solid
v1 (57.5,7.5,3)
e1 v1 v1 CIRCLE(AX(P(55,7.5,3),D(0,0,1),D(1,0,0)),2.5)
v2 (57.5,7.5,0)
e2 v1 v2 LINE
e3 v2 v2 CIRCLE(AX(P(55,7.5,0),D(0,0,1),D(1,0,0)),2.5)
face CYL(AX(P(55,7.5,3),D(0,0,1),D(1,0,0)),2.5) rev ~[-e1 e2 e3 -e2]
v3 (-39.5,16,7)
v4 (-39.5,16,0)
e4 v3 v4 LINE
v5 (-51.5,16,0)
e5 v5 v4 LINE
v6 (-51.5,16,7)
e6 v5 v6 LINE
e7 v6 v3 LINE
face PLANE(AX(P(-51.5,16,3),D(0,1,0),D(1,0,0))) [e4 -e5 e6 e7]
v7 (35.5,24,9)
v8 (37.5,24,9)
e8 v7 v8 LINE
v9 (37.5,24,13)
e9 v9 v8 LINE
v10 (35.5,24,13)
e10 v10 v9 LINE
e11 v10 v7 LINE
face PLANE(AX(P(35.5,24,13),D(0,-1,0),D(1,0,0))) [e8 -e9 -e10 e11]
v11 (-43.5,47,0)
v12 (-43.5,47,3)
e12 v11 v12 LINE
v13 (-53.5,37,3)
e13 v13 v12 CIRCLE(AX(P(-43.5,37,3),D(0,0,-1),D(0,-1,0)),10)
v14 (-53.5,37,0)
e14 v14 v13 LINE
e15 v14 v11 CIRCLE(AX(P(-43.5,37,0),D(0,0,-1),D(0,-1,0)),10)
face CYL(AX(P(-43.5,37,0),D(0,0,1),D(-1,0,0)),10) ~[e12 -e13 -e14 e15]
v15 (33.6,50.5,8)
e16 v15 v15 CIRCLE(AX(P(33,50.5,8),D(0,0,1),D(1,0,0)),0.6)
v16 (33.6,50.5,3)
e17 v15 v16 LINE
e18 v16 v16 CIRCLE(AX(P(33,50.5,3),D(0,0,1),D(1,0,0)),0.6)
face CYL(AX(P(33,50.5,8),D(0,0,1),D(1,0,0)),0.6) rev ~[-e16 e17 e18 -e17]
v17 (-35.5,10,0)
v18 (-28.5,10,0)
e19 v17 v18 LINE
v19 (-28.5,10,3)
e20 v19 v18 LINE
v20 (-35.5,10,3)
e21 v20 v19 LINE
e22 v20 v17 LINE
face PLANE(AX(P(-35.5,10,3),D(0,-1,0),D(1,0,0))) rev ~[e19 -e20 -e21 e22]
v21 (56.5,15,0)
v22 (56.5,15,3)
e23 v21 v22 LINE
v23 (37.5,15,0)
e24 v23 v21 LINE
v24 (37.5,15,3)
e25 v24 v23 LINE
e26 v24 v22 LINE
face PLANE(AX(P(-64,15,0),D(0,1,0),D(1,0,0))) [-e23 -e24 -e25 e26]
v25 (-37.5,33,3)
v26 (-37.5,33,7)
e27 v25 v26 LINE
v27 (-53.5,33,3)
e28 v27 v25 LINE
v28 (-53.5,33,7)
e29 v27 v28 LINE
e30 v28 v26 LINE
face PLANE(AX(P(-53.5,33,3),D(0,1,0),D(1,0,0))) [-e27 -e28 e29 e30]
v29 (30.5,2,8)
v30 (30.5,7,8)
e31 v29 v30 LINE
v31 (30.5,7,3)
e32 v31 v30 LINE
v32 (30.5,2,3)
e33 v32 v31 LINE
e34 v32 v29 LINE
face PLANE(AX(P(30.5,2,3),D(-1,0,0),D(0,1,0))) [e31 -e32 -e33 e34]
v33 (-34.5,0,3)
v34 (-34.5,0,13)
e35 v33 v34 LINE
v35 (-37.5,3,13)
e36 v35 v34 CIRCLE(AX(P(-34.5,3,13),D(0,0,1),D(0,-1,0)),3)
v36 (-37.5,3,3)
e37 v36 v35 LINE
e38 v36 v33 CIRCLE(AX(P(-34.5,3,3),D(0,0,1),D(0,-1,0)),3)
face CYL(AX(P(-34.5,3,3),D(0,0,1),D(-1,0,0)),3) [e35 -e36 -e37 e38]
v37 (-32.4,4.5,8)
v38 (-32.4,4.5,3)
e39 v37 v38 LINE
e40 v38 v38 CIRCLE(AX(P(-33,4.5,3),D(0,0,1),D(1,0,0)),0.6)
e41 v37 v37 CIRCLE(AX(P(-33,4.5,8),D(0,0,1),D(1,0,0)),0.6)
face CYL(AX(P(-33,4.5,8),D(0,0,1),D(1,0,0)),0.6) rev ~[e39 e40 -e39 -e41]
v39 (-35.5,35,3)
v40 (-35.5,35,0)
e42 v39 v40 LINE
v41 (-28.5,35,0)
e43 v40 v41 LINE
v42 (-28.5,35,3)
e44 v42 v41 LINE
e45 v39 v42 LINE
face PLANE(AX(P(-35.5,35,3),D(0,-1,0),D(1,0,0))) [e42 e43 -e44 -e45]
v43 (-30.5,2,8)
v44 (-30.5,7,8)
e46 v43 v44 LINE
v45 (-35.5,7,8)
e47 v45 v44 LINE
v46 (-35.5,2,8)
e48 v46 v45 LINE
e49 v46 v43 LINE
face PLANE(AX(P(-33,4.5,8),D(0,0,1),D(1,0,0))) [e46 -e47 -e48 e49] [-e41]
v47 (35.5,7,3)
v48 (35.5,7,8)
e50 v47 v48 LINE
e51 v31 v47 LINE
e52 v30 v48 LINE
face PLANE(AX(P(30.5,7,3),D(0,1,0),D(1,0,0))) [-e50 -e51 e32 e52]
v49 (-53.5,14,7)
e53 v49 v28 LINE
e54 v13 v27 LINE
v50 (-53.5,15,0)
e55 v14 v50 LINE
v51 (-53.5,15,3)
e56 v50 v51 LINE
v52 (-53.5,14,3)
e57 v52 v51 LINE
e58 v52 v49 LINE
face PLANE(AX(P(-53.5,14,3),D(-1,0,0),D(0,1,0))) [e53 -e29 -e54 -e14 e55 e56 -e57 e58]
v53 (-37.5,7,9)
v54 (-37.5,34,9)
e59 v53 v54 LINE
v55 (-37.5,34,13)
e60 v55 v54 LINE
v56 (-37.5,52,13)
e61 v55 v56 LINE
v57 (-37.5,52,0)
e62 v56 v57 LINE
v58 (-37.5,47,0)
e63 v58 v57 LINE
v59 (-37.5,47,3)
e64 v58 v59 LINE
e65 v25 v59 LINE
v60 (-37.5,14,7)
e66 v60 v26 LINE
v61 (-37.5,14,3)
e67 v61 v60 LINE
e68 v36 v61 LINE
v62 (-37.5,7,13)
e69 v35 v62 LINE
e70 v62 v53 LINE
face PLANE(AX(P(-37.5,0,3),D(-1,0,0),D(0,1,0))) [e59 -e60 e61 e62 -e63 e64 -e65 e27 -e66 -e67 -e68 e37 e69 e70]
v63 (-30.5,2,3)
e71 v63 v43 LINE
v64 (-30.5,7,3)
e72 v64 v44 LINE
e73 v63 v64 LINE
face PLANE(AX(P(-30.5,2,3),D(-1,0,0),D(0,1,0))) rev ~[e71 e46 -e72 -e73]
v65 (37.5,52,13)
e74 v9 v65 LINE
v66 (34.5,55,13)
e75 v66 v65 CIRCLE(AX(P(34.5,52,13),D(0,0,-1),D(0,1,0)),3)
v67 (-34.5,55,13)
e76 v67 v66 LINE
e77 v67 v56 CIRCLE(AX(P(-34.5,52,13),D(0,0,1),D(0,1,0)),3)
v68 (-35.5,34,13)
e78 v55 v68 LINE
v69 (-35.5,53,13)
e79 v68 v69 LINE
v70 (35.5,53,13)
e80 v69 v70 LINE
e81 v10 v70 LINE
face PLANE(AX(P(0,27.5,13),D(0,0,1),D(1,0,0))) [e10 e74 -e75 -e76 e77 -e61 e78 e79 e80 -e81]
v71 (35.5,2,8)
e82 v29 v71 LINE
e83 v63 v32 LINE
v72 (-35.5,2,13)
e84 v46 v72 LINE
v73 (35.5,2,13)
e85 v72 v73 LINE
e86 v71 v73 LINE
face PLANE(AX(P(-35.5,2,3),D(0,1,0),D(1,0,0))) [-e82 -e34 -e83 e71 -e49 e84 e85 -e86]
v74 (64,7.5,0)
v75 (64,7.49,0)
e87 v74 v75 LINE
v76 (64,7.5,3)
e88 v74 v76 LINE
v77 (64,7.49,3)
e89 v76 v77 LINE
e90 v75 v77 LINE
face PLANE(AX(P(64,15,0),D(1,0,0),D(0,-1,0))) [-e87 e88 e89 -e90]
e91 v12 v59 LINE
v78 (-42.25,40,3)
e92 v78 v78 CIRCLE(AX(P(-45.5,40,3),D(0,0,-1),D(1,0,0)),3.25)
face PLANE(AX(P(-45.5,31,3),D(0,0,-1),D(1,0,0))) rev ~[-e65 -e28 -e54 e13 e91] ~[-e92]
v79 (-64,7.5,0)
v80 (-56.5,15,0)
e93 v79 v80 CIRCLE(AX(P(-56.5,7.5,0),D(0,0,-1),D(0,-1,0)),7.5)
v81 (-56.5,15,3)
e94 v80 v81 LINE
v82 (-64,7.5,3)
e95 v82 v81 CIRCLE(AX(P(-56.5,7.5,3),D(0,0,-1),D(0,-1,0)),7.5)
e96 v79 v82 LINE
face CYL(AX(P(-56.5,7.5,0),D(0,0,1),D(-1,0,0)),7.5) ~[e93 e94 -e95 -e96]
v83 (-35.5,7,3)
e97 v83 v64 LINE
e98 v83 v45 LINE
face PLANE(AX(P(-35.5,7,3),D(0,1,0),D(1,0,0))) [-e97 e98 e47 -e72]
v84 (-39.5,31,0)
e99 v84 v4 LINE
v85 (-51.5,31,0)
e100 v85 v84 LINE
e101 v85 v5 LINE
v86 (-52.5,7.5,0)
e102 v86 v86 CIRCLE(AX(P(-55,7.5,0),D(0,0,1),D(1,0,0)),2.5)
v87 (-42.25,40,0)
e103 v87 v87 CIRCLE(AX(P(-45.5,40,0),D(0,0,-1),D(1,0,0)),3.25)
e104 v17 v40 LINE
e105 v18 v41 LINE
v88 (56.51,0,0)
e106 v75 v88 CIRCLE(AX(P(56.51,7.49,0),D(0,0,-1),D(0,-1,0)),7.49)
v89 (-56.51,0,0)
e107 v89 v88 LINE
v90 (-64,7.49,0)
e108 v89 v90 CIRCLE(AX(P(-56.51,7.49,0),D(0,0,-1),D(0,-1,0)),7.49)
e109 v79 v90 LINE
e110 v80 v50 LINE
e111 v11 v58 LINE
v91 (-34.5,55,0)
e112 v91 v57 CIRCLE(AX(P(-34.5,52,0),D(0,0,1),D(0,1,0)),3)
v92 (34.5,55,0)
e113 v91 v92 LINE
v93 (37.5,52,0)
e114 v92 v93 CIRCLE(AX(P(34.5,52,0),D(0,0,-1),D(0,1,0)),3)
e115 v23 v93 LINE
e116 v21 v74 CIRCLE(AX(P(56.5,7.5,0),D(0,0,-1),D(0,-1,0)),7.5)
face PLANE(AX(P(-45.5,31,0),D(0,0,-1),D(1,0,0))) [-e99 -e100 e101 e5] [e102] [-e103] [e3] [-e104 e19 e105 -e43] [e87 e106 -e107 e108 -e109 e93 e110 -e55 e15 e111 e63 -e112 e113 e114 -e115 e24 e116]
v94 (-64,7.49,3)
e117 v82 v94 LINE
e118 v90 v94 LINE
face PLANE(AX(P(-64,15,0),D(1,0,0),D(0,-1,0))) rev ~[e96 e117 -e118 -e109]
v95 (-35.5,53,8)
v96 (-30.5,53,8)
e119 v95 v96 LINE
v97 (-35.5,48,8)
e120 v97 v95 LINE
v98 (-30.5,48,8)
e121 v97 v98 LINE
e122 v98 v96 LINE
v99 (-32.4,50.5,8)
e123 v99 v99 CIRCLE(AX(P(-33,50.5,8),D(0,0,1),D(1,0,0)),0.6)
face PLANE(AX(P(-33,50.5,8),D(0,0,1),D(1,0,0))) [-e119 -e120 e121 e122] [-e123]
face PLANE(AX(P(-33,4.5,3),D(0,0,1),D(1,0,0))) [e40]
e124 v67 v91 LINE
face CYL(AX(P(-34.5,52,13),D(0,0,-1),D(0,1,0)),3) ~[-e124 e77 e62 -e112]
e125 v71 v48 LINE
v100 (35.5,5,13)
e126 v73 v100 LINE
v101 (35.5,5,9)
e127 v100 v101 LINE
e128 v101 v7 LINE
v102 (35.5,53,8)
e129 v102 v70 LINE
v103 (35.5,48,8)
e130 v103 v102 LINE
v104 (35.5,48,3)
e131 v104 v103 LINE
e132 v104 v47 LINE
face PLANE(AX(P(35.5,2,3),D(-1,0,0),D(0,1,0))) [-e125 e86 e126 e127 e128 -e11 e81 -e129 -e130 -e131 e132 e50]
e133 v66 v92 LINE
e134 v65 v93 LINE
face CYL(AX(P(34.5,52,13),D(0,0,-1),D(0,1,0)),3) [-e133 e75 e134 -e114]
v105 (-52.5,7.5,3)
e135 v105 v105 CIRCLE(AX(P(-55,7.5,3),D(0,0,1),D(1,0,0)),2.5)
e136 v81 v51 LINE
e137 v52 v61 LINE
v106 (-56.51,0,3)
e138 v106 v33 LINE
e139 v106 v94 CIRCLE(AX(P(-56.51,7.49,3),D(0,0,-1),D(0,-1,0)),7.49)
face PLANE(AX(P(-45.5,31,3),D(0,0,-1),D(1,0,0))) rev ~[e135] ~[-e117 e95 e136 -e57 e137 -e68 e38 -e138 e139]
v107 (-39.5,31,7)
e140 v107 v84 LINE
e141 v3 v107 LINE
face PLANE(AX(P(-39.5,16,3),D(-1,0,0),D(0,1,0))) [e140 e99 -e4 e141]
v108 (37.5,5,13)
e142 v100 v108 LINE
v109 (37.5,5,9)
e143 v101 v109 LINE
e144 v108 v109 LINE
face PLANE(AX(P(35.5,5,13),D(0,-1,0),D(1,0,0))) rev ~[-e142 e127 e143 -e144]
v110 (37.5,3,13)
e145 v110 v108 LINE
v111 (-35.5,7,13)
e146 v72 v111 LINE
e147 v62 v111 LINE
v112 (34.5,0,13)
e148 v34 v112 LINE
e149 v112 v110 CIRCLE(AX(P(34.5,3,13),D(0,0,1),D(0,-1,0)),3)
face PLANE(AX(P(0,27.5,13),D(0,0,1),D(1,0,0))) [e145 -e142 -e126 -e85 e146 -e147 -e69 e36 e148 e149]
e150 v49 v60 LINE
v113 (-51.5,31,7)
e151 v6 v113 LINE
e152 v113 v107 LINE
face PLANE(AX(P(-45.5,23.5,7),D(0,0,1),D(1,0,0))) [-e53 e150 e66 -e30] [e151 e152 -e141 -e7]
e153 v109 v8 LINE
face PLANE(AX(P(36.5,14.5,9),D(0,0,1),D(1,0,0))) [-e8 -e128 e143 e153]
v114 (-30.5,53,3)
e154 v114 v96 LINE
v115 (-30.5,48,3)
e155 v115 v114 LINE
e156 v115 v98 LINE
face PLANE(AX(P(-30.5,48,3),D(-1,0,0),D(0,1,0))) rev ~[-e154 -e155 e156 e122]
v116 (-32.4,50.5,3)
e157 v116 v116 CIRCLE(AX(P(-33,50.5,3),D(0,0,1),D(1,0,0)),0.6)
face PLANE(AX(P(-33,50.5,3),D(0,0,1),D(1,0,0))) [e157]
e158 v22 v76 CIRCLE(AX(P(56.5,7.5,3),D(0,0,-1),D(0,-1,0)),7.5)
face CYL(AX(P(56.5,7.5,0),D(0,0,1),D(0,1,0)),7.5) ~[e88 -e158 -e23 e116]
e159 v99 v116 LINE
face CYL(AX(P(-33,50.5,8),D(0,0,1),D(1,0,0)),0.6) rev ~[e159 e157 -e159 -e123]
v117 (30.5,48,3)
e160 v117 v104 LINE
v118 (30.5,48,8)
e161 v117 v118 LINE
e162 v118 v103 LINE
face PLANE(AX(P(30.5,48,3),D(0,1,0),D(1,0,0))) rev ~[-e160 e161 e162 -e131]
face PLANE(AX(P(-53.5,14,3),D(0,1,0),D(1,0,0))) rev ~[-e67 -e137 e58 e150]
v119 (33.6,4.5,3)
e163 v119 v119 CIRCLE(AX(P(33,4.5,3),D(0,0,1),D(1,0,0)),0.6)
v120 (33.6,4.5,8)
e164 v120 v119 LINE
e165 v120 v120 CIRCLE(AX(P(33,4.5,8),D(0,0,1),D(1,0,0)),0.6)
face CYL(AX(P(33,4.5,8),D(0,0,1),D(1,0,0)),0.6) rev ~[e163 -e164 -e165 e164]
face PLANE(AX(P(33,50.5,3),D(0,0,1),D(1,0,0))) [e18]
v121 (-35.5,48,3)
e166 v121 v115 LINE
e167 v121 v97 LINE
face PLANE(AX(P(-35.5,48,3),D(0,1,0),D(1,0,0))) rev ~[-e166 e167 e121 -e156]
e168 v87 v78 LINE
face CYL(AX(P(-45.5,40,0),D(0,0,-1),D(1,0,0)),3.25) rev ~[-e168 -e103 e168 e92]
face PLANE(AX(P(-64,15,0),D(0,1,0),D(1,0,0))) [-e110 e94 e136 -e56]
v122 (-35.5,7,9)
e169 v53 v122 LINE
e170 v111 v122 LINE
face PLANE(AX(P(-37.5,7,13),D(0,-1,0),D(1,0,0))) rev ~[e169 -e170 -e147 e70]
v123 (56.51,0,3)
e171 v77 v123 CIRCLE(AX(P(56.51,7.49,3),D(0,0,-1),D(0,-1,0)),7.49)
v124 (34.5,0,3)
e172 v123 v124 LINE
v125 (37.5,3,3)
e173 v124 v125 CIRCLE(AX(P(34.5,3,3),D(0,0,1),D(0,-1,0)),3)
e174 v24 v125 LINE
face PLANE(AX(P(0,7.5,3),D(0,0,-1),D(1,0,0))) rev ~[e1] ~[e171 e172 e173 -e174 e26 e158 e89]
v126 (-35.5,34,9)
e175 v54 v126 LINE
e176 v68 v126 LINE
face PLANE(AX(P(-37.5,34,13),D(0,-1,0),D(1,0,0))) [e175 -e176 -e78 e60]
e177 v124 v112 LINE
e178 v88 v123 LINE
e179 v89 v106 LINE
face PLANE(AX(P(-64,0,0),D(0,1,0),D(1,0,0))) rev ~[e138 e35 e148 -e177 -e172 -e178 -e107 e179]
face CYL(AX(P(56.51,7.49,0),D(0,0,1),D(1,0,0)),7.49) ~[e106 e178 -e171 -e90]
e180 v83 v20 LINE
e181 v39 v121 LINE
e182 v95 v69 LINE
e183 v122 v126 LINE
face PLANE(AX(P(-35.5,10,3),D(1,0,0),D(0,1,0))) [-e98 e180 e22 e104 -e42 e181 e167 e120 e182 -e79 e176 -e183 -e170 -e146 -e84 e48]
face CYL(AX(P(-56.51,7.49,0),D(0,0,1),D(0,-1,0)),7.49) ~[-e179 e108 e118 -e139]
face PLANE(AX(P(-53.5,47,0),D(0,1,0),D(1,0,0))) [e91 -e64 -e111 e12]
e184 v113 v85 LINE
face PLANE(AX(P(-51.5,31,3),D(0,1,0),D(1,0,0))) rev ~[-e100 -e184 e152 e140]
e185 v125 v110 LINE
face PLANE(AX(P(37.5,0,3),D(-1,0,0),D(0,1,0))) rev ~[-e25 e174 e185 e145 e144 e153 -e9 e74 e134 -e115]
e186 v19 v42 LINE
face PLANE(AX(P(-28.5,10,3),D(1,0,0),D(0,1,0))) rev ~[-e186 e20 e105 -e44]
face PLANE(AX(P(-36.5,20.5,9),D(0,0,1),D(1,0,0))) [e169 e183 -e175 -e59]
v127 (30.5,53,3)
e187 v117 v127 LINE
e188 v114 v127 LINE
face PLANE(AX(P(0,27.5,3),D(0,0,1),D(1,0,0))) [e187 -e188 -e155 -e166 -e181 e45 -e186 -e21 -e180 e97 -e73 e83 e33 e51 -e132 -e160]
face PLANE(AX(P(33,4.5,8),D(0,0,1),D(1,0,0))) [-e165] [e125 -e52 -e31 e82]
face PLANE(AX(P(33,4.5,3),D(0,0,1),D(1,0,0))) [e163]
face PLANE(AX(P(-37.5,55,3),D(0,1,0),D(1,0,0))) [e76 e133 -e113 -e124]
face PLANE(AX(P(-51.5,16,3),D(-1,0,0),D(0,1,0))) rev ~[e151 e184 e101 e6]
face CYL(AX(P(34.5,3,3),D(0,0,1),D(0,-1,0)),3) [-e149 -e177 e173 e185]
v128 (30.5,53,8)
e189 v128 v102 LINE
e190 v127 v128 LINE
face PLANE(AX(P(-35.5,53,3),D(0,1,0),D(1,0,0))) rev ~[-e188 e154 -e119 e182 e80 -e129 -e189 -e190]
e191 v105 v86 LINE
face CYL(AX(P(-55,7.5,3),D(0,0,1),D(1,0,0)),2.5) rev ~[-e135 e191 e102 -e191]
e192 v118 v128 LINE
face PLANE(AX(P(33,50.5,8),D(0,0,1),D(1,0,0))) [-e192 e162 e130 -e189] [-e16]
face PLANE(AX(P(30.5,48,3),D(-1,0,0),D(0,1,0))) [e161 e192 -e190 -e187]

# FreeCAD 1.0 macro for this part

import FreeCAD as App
import Part
import Sketcher
Q = App.Units.Quantity


def edges_at(feature, points):
    """Names of the edges that pass closest to the given points."""
    edges = feature.Shape.Edges
    near = lambda p: min(range(len(edges)), key=lambda i: edges[i].distToShape(Part.Vertex(*p))[0])
    return sorted({f"Edge{near(p) + 1}" for p in points})

doc = App.newDocument("Part")
body = doc.addObject("PartDesign::Body", "Body")

sketch1 = body.newObject("Sketcher::SketchObject", "Sketch")
sketch1.AttachmentSupport = (doc.getObject("XY_Plane"), [""])
sketch1.MapMode = "FlatFace"
sketch1.addGeometry(Part.LineSegment(App.Vector(-38, 55, 0), App.Vector(-38, 0, 0)), False)
sketch1.addGeometry(Part.LineSegment(App.Vector(-38, 0, 0), App.Vector(38, 0, 0)), False)
sketch1.addGeometry(Part.LineSegment(App.Vector(38, 0, 0), App.Vector(38, 55, 0)), False)
sketch1.addGeometry(Part.LineSegment(App.Vector(38, 55, 0), App.Vector(-38, 55, 0)), False)
sketch1.addConstraint(Sketcher.Constraint("Coincident", 0, 2, 1, 1))
sketch1.addConstraint(Sketcher.Constraint("Coincident", 1, 2, 2, 1))
sketch1.addConstraint(Sketcher.Constraint("Coincident", 2, 2, 3, 1))
sketch1.addConstraint(Sketcher.Constraint("Coincident", 3, 2, 0, 1))
sketch1.addConstraint(Sketcher.Constraint("Vertical", 0))
sketch1.addConstraint(Sketcher.Constraint("Horizontal", 1))
sketch1.addConstraint(Sketcher.Constraint("Vertical", 2))
sketch1.addConstraint(Sketcher.Constraint("Horizontal", 3))
sketch1.addConstraint(Sketcher.Constraint("Symmetric", 0, 2, 1, 2, -1, 1))
sketch1.addConstraint(Sketcher.Constraint("DistanceX", 1, 1, 1, 2, Q("75 mm")))
sketch1.addConstraint(Sketcher.Constraint("DistanceY", 0, 2, 0, 1, Q("55 mm")))
pad1 = body.newObject("PartDesign::Pad", "Pad")
pad1.Profile = sketch1
pad1.Length = 3

sketch2 = body.newObject("Sketcher::SketchObject", "Sketch001")
sketch2.AttachmentSupport = (doc.getObject("XY_Plane"), [""])
sketch2.MapMode = "FlatFace"
sketch2.AttachmentOffset = App.Placement(App.Vector(0, 0, 3), App.Rotation())
sketch2.addGeometry(Part.LineSegment(App.Vector(-38, 55, 0), App.Vector(-38, 0, 0)), False)
sketch2.addGeometry(Part.LineSegment(App.Vector(-38, 0, 0), App.Vector(38, 0, 0)), False)
sketch2.addGeometry(Part.LineSegment(App.Vector(38, 0, 0), App.Vector(38, 55, 0)), False)
sketch2.addGeometry(Part.LineSegment(App.Vector(38, 55, 0), App.Vector(-38, 55, 0)), False)
sketch2.addGeometry(Part.LineSegment(App.Vector(36, 2, 0), App.Vector(-36, 2, 0)), False)
sketch2.addGeometry(Part.LineSegment(App.Vector(-36, 2, 0), App.Vector(-36, 53, 0)), False)
sketch2.addGeometry(Part.LineSegment(App.Vector(-36, 53, 0), App.Vector(36, 53, 0)), False)
sketch2.addGeometry(Part.LineSegment(App.Vector(36, 53, 0), App.Vector(36, 2, 0)), False)
sketch2.addConstraint(Sketcher.Constraint("Coincident", 0, 2, 1, 1))
sketch2.addConstraint(Sketcher.Constraint("Coincident", 1, 2, 2, 1))
sketch2.addConstraint(Sketcher.Constraint("Coincident", 2, 2, 3, 1))
sketch2.addConstraint(Sketcher.Constraint("Coincident", 3, 2, 0, 1))
sketch2.addConstraint(Sketcher.Constraint("Coincident", 4, 2, 5, 1))
sketch2.addConstraint(Sketcher.Constraint("Coincident", 5, 2, 6, 1))
sketch2.addConstraint(Sketcher.Constraint("Coincident", 6, 2, 7, 1))
sketch2.addConstraint(Sketcher.Constraint("Coincident", 7, 2, 4, 1))
sketch2.addConstraint(Sketcher.Constraint("Vertical", 0))
sketch2.addConstraint(Sketcher.Constraint("Horizontal", 1))
sketch2.addConstraint(Sketcher.Constraint("Vertical", 2))
sketch2.addConstraint(Sketcher.Constraint("Horizontal", 3))
sketch2.addConstraint(Sketcher.Constraint("Horizontal", 4))
sketch2.addConstraint(Sketcher.Constraint("Vertical", 5))
sketch2.addConstraint(Sketcher.Constraint("Horizontal", 6))
sketch2.addConstraint(Sketcher.Constraint("Vertical", 7))
sketch2.addConstraint(Sketcher.Constraint("Symmetric", 0, 2, 1, 2, -1, 1))
sketch2.addConstraint(Sketcher.Constraint("DistanceX", 1, 1, 1, 2, Q("75 mm")))
sketch2.addConstraint(Sketcher.Constraint("DistanceX", 4, 2, 4, 1, Q("71 mm")))
sketch2.addConstraint(Sketcher.Constraint("DistanceY", 0, 2, 0, 1, Q("55 mm")))
sketch2.addConstraint(Sketcher.Constraint("DistanceY", 5, 1, 5, 2, Q("51 mm")))
sketch2.addConstraint(Sketcher.Constraint("DistanceY", -1, 1, 4, 2, Q("2 mm")))
sketch2.addConstraint(Sketcher.Constraint("DistanceX", 0, 2, 4, 2, Q("2 mm")))
pad2 = body.newObject("PartDesign::Pad", "Pad001")
pad2.Profile = sketch2
pad2.Length = 10

sketch3 = body.newObject("Sketcher::SketchObject", "Sketch002")
sketch3.AttachmentSupport = (doc.getObject("XY_Plane"), [""])
sketch3.MapMode = "FlatFace"
sketch3.AttachmentOffset = App.Placement(App.Vector(0, 0, 3), App.Rotation())
sketch3.addGeometry(Part.LineSegment(App.Vector(-36, 53, 0), App.Vector(-36, 48, 0)), False)
sketch3.addGeometry(Part.LineSegment(App.Vector(-36, 48, 0), App.Vector(-30, 48, 0)), False)
sketch3.addGeometry(Part.LineSegment(App.Vector(-30, 48, 0), App.Vector(-30, 53, 0)), False)
sketch3.addGeometry(Part.LineSegment(App.Vector(-30, 53, 0), App.Vector(-36, 53, 0)), False)
sketch3.addGeometry(Part.LineSegment(App.Vector(30, 53, 0), App.Vector(30, 48, 0)), False)
sketch3.addGeometry(Part.LineSegment(App.Vector(30, 48, 0), App.Vector(36, 48, 0)), False)
sketch3.addGeometry(Part.LineSegment(App.Vector(36, 48, 0), App.Vector(36, 53, 0)), False)
sketch3.addGeometry(Part.LineSegment(App.Vector(36, 53, 0), App.Vector(30, 53, 0)), False)
sketch3.addGeometry(Part.LineSegment(App.Vector(30, 7, 0), App.Vector(30, 2, 0)), False)
sketch3.addGeometry(Part.LineSegment(App.Vector(30, 2, 0), App.Vector(36, 2, 0)), False)
sketch3.addGeometry(Part.LineSegment(App.Vector(36, 2, 0), App.Vector(36, 7, 0)), False)
sketch3.addGeometry(Part.LineSegment(App.Vector(36, 7, 0), App.Vector(30, 7, 0)), False)
sketch3.addGeometry(Part.LineSegment(App.Vector(-36, 7, 0), App.Vector(-36, 2, 0)), False)
sketch3.addGeometry(Part.LineSegment(App.Vector(-36, 2, 0), App.Vector(-30, 2, 0)), False)
sketch3.addGeometry(Part.LineSegment(App.Vector(-30, 2, 0), App.Vector(-30, 7, 0)), False)
sketch3.addGeometry(Part.LineSegment(App.Vector(-30, 7, 0), App.Vector(-36, 7, 0)), False)
sketch3.addConstraint(Sketcher.Constraint("Coincident", 0, 2, 1, 1))
sketch3.addConstraint(Sketcher.Constraint("Coincident", 1, 2, 2, 1))
sketch3.addConstraint(Sketcher.Constraint("Coincident", 2, 2, 3, 1))
sketch3.addConstraint(Sketcher.Constraint("Coincident", 3, 2, 0, 1))
sketch3.addConstraint(Sketcher.Constraint("Coincident", 4, 2, 5, 1))
sketch3.addConstraint(Sketcher.Constraint("Coincident", 5, 2, 6, 1))
sketch3.addConstraint(Sketcher.Constraint("Coincident", 6, 2, 7, 1))
sketch3.addConstraint(Sketcher.Constraint("Coincident", 7, 2, 4, 1))
sketch3.addConstraint(Sketcher.Constraint("Coincident", 8, 2, 9, 1))
sketch3.addConstraint(Sketcher.Constraint("Coincident", 9, 2, 10, 1))
sketch3.addConstraint(Sketcher.Constraint("Coincident", 10, 2, 11, 1))
sketch3.addConstraint(Sketcher.Constraint("Coincident", 11, 2, 8, 1))
sketch3.addConstraint(Sketcher.Constraint("Coincident", 12, 2, 13, 1))
sketch3.addConstraint(Sketcher.Constraint("Coincident", 13, 2, 14, 1))
sketch3.addConstraint(Sketcher.Constraint("Coincident", 14, 2, 15, 1))
sketch3.addConstraint(Sketcher.Constraint("Coincident", 15, 2, 12, 1))
sketch3.addConstraint(Sketcher.Constraint("Vertical", 0))
sketch3.addConstraint(Sketcher.Constraint("Horizontal", 1))
sketch3.addConstraint(Sketcher.Constraint("Vertical", 2))
sketch3.addConstraint(Sketcher.Constraint("Horizontal", 3))
sketch3.addConstraint(Sketcher.Constraint("Vertical", 4))
sketch3.addConstraint(Sketcher.Constraint("Horizontal", 5))
sketch3.addConstraint(Sketcher.Constraint("Vertical", 6))
sketch3.addConstraint(Sketcher.Constraint("Horizontal", 7))
sketch3.addConstraint(Sketcher.Constraint("Vertical", 8))
sketch3.addConstraint(Sketcher.Constraint("Horizontal", 9))
sketch3.addConstraint(Sketcher.Constraint("Vertical", 10))
sketch3.addConstraint(Sketcher.Constraint("Horizontal", 11))
sketch3.addConstraint(Sketcher.Constraint("Vertical", 12))
sketch3.addConstraint(Sketcher.Constraint("Horizontal", 13))
sketch3.addConstraint(Sketcher.Constraint("Vertical", 14))
sketch3.addConstraint(Sketcher.Constraint("Horizontal", 15))
sketch3.addConstraint(Sketcher.Constraint("Symmetric", 1, 2, 4, 2, -2))
sketch3.addConstraint(Sketcher.Constraint("Symmetric", 3, 2, 6, 2, -2))
sketch3.addConstraint(Sketcher.Constraint("Symmetric", 9, 2, 12, 2, -2))
sketch3.addConstraint(Sketcher.Constraint("Symmetric", 11, 2, 14, 2, -2))
sketch3.addConstraint(Sketcher.Constraint("Vertical", 7, 2, 8, 2))
sketch3.addConstraint(Sketcher.Constraint("Vertical", 6, 2, 9, 2))
sketch3.addConstraint(Sketcher.Constraint("Equal", 15, 0))
sketch3.addConstraint(Sketcher.Constraint("Equal", 6, 8))
sketch3.addConstraint(Sketcher.Constraint("DistanceX", 1, 1, 1, 2, Q("5 mm")))
sketch3.addConstraint(Sketcher.Constraint("DistanceY", -1, 1, 0, 2, Q("48 mm")))
sketch3.addConstraint(Sketcher.Constraint("DistanceY", -1, 1, 8, 2, Q("2 mm")))
sketch3.addConstraint(Sketcher.Constraint("DistanceX", 1, 2, 4, 2, Q("61 mm")))
pad3 = body.newObject("PartDesign::Pad", "Pad002")
pad3.Profile = sketch3
pad3.Length = 5

sketch4 = body.newObject("Sketcher::SketchObject", "Sketch003")
sketch4.AttachmentSupport = (doc.getObject("XY_Plane"), [""])
sketch4.MapMode = "FlatFace"
sketch4.AttachmentOffset = App.Placement(App.Vector(0, 0, 13), App.Rotation())
sketch4.addGeometry(Part.LineSegment(App.Vector(35.5, 24, 0), App.Vector(35.5, 5, 0)), False)
sketch4.addGeometry(Part.LineSegment(App.Vector(35.5, 5, 0), App.Vector(37.5, 5, 0)), False)
sketch4.addGeometry(Part.LineSegment(App.Vector(37.5, 5, 0), App.Vector(37.5, 24, 0)), False)
sketch4.addGeometry(Part.LineSegment(App.Vector(37.5, 24, 0), App.Vector(35.5, 24, 0)), False)
sketch4.addConstraint(Sketcher.Constraint("Coincident", 0, 2, 1, 1))
sketch4.addConstraint(Sketcher.Constraint("Coincident", 1, 2, 2, 1))
sketch4.addConstraint(Sketcher.Constraint("Coincident", 2, 2, 3, 1))
sketch4.addConstraint(Sketcher.Constraint("Coincident", 3, 2, 0, 1))
sketch4.addConstraint(Sketcher.Constraint("Vertical", 0))
sketch4.addConstraint(Sketcher.Constraint("Horizontal", 1))
sketch4.addConstraint(Sketcher.Constraint("Vertical", 2))
sketch4.addConstraint(Sketcher.Constraint("Horizontal", 3))
sketch4.addConstraint(Sketcher.Constraint("DistanceX", 1, 1, 1, 2, Q("2 mm")))
sketch4.addConstraint(Sketcher.Constraint("DistanceY", 0, 2, 0, 1, Q("19 mm")))
sketch4.addConstraint(Sketcher.Constraint("DistanceY", -1, 1, 0, 2, Q("5 mm")))
sketch4.addConstraint(Sketcher.Constraint("DistanceX", -1, 1, 0, 2, Q("35.5 mm")))
pocket1 = body.newObject("PartDesign::Pocket", "Pocket")
pocket1.Profile = sketch4
pocket1.Length = 4

sketch5 = body.newObject("Sketcher::SketchObject", "Sketch004")
sketch5.AttachmentSupport = (doc.getObject("XY_Plane"), [""])
sketch5.MapMode = "FlatFace"
sketch5.AttachmentOffset = App.Placement(App.Vector(0, 0, 13), App.Rotation())
sketch5.addGeometry(Part.LineSegment(App.Vector(-37.5, 34, 0), App.Vector(-37.5, 7, 0)), False)
sketch5.addGeometry(Part.LineSegment(App.Vector(-37.5, 7, 0), App.Vector(-35.5, 7, 0)), False)
sketch5.addGeometry(Part.LineSegment(App.Vector(-35.5, 7, 0), App.Vector(-35.5, 34, 0)), False)
sketch5.addGeometry(Part.LineSegment(App.Vector(-35.5, 34, 0), App.Vector(-37.5, 34, 0)), False)
sketch5.addConstraint(Sketcher.Constraint("Coincident", 0, 2, 1, 1))
sketch5.addConstraint(Sketcher.Constraint("Coincident", 1, 2, 2, 1))
sketch5.addConstraint(Sketcher.Constraint("Coincident", 2, 2, 3, 1))
sketch5.addConstraint(Sketcher.Constraint("Coincident", 3, 2, 0, 1))
sketch5.addConstraint(Sketcher.Constraint("Vertical", 0))
sketch5.addConstraint(Sketcher.Constraint("Horizontal", 1))
sketch5.addConstraint(Sketcher.Constraint("Vertical", 2))
sketch5.addConstraint(Sketcher.Constraint("Horizontal", 3))
sketch5.addConstraint(Sketcher.Constraint("DistanceX", 1, 1, 1, 2, Q("2 mm")))
sketch5.addConstraint(Sketcher.Constraint("DistanceY", 0, 2, 0, 1, Q("27 mm")))
sketch5.addConstraint(Sketcher.Constraint("DistanceY", -1, 1, 0, 2, Q("7 mm")))
sketch5.addConstraint(Sketcher.Constraint("DistanceX", 0, 2, -1, 1, Q("37.5 mm")))
pocket2 = body.newObject("PartDesign::Pocket", "Pocket001")
pocket2.Profile = sketch5
pocket2.Length = 4

sketch6 = body.newObject("Sketcher::SketchObject", "Sketch005")
sketch6.AttachmentSupport = (doc.getObject("XY_Plane"), [""])
sketch6.MapMode = "FlatFace"
sketch6.addGeometry(Part.LineSegment(App.Vector(-64, 0, 0), App.Vector(-64, 15, 0)), False)
sketch6.addGeometry(Part.LineSegment(App.Vector(-64, 15, 0), App.Vector(64, 15, 0)), False)
sketch6.addGeometry(Part.LineSegment(App.Vector(64, 15, 0), App.Vector(64, 0, 0)), False)
sketch6.addGeometry(Part.LineSegment(App.Vector(64, 0, 0), App.Vector(-64, 0, 0)), False)
sketch6.addConstraint(Sketcher.Constraint("Coincident", 0, 2, 1, 1))
sketch6.addConstraint(Sketcher.Constraint("Coincident", 1, 2, 2, 1))
sketch6.addConstraint(Sketcher.Constraint("Coincident", 2, 2, 3, 1))
sketch6.addConstraint(Sketcher.Constraint("Coincident", 3, 2, 0, 1))
sketch6.addConstraint(Sketcher.Constraint("Vertical", 0))
sketch6.addConstraint(Sketcher.Constraint("Horizontal", 1))
sketch6.addConstraint(Sketcher.Constraint("Vertical", 2))
sketch6.addConstraint(Sketcher.Constraint("Horizontal", 3))
sketch6.addConstraint(Sketcher.Constraint("Symmetric", 2, 2, 3, 2, -1, 1))
sketch6.addConstraint(Sketcher.Constraint("DistanceX", 1, 1, 1, 2, Q("128 mm")))
sketch6.addConstraint(Sketcher.Constraint("DistanceY", 0, 1, 0, 2, Q("15 mm")))
pad4 = body.newObject("PartDesign::Pad", "Pad003")
pad4.Profile = sketch6
pad4.Length = 3

sketch7 = body.newObject("Sketcher::SketchObject", "Sketch006")
sketch7.AttachmentSupport = (doc.getObject("XY_Plane"), [""])
sketch7.MapMode = "FlatFace"
sketch7.AttachmentOffset = App.Placement(App.Vector(0, 0, 3), App.Rotation())
sketch7.addGeometry(Part.Circle(App.Vector(-55, 7.5, 0), App.Vector(0, 0, 1), 2.5), False)
sketch7.addGeometry(Part.Circle(App.Vector(55, 7.5, 0), App.Vector(0, 0, 1), 2.5), False)
sketch7.addConstraint(Sketcher.Constraint("Equal", 0, 1))
sketch7.addConstraint(Sketcher.Constraint("Symmetric", 0, 3, 1, 3, -2))
sketch7.addConstraint(Sketcher.Constraint("Diameter", 0, Q("5 mm")))
sketch7.addConstraint(Sketcher.Constraint("DistanceX", 0, 3, -1, 1, Q("55 mm")))
sketch7.addConstraint(Sketcher.Constraint("DistanceY", -1, 1, 0, 3, Q("7.5 mm")))
pocket3 = body.newObject("PartDesign::Pocket", "Pocket002")
pocket3.Profile = sketch7
pocket3.Length = 3

sketch8 = body.newObject("Sketcher::SketchObject", "Sketch007")
sketch8.AttachmentSupport = (doc.getObject("XY_Plane"), [""])
sketch8.MapMode = "FlatFace"
sketch8.addGeometry(Part.LineSegment(App.Vector(-53.5, 15, 0), App.Vector(-53.5, 47, 0)), False)
sketch8.addGeometry(Part.LineSegment(App.Vector(-53.5, 47, 0), App.Vector(-37.5, 47, 0)), False)
sketch8.addGeometry(Part.LineSegment(App.Vector(-37.5, 47, 0), App.Vector(-37.5, 15, 0)), False)
sketch8.addGeometry(Part.LineSegment(App.Vector(-37.5, 15, 0), App.Vector(-53.5, 15, 0)), False)
sketch8.addGeometry(Part.Circle(App.Vector(-45.5, 40, 0), App.Vector(0, 0, 1), 3.2), False)
sketch8.addGeometry(Part.LineSegment(App.Vector(-39.5, 31, 0), App.Vector(-51.5, 31, 0)), False)
sketch8.addGeometry(Part.LineSegment(App.Vector(-51.5, 31, 0), App.Vector(-51.5, 16, 0)), False)
sketch8.addGeometry(Part.LineSegment(App.Vector(-51.5, 16, 0), App.Vector(-39.5, 16, 0)), False)
sketch8.addGeometry(Part.LineSegment(App.Vector(-39.5, 16, 0), App.Vector(-39.5, 31, 0)), False)
sketch8.addConstraint(Sketcher.Constraint("Coincident", 0, 2, 1, 1))
sketch8.addConstraint(Sketcher.Constraint("Coincident", 1, 2, 2, 1))
sketch8.addConstraint(Sketcher.Constraint("Coincident", 2, 2, 3, 1))
sketch8.addConstraint(Sketcher.Constraint("Coincident", 3, 2, 0, 1))
sketch8.addConstraint(Sketcher.Constraint("Coincident", 5, 2, 6, 1))
sketch8.addConstraint(Sketcher.Constraint("Coincident", 6, 2, 7, 1))
sketch8.addConstraint(Sketcher.Constraint("Coincident", 7, 2, 8, 1))
sketch8.addConstraint(Sketcher.Constraint("Coincident", 8, 2, 5, 1))
sketch8.addConstraint(Sketcher.Constraint("Vertical", 0))
sketch8.addConstraint(Sketcher.Constraint("Horizontal", 1))
sketch8.addConstraint(Sketcher.Constraint("Vertical", 2))
sketch8.addConstraint(Sketcher.Constraint("Horizontal", 3))
sketch8.addConstraint(Sketcher.Constraint("Horizontal", 5))
sketch8.addConstraint(Sketcher.Constraint("Vertical", 6))
sketch8.addConstraint(Sketcher.Constraint("Horizontal", 7))
sketch8.addConstraint(Sketcher.Constraint("Vertical", 8))
sketch8.addConstraint(Sketcher.Constraint("Diameter", 4, Q("6.5 mm")))
sketch8.addConstraint(Sketcher.Constraint("DistanceX", 1, 1, 1, 2, Q("16 mm")))
sketch8.addConstraint(Sketcher.Constraint("DistanceX", 5, 2, 5, 1, Q("12 mm")))
sketch8.addConstraint(Sketcher.Constraint("DistanceY", 0, 1, 0, 2, Q("32 mm")))
sketch8.addConstraint(Sketcher.Constraint("DistanceY", 6, 2, 6, 1, Q("15 mm")))
sketch8.addConstraint(Sketcher.Constraint("DistanceY", -1, 1, 4, 3, Q("40 mm")))
sketch8.addConstraint(Sketcher.Constraint("DistanceY", -1, 1, 0, 2, Q("47 mm")))
sketch8.addConstraint(Sketcher.Constraint("DistanceY", -1, 1, 5, 2, Q("31 mm")))
sketch8.addConstraint(Sketcher.Constraint("DistanceX", 0, 2, 4, 3, Q("8 mm")))
sketch8.addConstraint(Sketcher.Constraint("DistanceX", 5, 2, 4, 3, Q("6 mm")))
sketch8.addConstraint(Sketcher.Constraint("DistanceX", 4, 3, -1, 1, Q("45.5 mm")))
pad5 = body.newObject("PartDesign::Pad", "Pad004")
pad5.Profile = sketch8
pad5.Length = 3

sketch9 = body.newObject("Sketcher::SketchObject", "Sketch008")
sketch9.AttachmentSupport = (doc.getObject("XY_Plane"), [""])
sketch9.MapMode = "FlatFace"
sketch9.AttachmentOffset = App.Placement(App.Vector(0, 0, 3), App.Rotation())
sketch9.addGeometry(Part.LineSegment(App.Vector(-36, 35, 0), App.Vector(-36, 10, 0)), False)
sketch9.addGeometry(Part.LineSegment(App.Vector(-36, 10, 0), App.Vector(-28, 10, 0)), False)
sketch9.addGeometry(Part.LineSegment(App.Vector(-28, 10, 0), App.Vector(-28, 35, 0)), False)
sketch9.addGeometry(Part.LineSegment(App.Vector(-28, 35, 0), App.Vector(-36, 35, 0)), False)
sketch9.addConstraint(Sketcher.Constraint("Coincident", 0, 2, 1, 1))
sketch9.addConstraint(Sketcher.Constraint("Coincident", 1, 2, 2, 1))
sketch9.addConstraint(Sketcher.Constraint("Coincident", 2, 2, 3, 1))
sketch9.addConstraint(Sketcher.Constraint("Coincident", 3, 2, 0, 1))
sketch9.addConstraint(Sketcher.Constraint("Vertical", 0))
sketch9.addConstraint(Sketcher.Constraint("Horizontal", 1))
sketch9.addConstraint(Sketcher.Constraint("Vertical", 2))
sketch9.addConstraint(Sketcher.Constraint("Horizontal", 3))
sketch9.addConstraint(Sketcher.Constraint("DistanceX", 1, 1, 1, 2, Q("7 mm")))
sketch9.addConstraint(Sketcher.Constraint("DistanceY", 0, 2, 0, 1, Q("25 mm")))
sketch9.addConstraint(Sketcher.Constraint("DistanceY", -1, 1, 0, 2, Q("10 mm")))
sketch9.addConstraint(Sketcher.Constraint("DistanceX", 0, 2, -1, 1, Q("35.5 mm")))
pocket4 = body.newObject("PartDesign::Pocket", "Pocket003")
pocket4.Profile = sketch9
pocket4.Length = 3

sketch10 = body.newObject("Sketcher::SketchObject", "Sketch009")
sketch10.AttachmentSupport = (doc.getObject("XY_Plane"), [""])
sketch10.MapMode = "FlatFace"
sketch10.AttachmentOffset = App.Placement(App.Vector(0, 0, 3), App.Rotation())
sketch10.addGeometry(Part.LineSegment(App.Vector(-54, 33, 0), App.Vector(-54, 14, 0)), False)
sketch10.addGeometry(Part.LineSegment(App.Vector(-54, 14, 0), App.Vector(-38, 14, 0)), False)
sketch10.addGeometry(Part.LineSegment(App.Vector(-38, 14, 0), App.Vector(-38, 33, 0)), False)
sketch10.addGeometry(Part.LineSegment(App.Vector(-38, 33, 0), App.Vector(-54, 33, 0)), False)
sketch10.addGeometry(Part.LineSegment(App.Vector(-40, 16, 0), App.Vector(-52, 16, 0)), False)
sketch10.addGeometry(Part.LineSegment(App.Vector(-52, 16, 0), App.Vector(-52, 31, 0)), False)
sketch10.addGeometry(Part.LineSegment(App.Vector(-52, 31, 0), App.Vector(-40, 31, 0)), False)
sketch10.addGeometry(Part.LineSegment(App.Vector(-40, 31, 0), App.Vector(-40, 16, 0)), False)
sketch10.addConstraint(Sketcher.Constraint("Coincident", 0, 2, 1, 1))
sketch10.addConstraint(Sketcher.Constraint("Coincident", 1, 2, 2, 1))
sketch10.addConstraint(Sketcher.Constraint("Coincident", 2, 2, 3, 1))
sketch10.addConstraint(Sketcher.Constraint("Coincident", 3, 2, 0, 1))
sketch10.addConstraint(Sketcher.Constraint("Coincident", 4, 2, 5, 1))
sketch10.addConstraint(Sketcher.Constraint("Coincident", 5, 2, 6, 1))
sketch10.addConstraint(Sketcher.Constraint("Coincident", 6, 2, 7, 1))
sketch10.addConstraint(Sketcher.Constraint("Coincident", 7, 2, 4, 1))
sketch10.addConstraint(Sketcher.Constraint("Vertical", 0))
sketch10.addConstraint(Sketcher.Constraint("Horizontal", 1))
sketch10.addConstraint(Sketcher.Constraint("Vertical", 2))
sketch10.addConstraint(Sketcher.Constraint("Horizontal", 3))
sketch10.addConstraint(Sketcher.Constraint("Horizontal", 4))
sketch10.addConstraint(Sketcher.Constraint("Vertical", 5))
sketch10.addConstraint(Sketcher.Constraint("Horizontal", 6))
sketch10.addConstraint(Sketcher.Constraint("Vertical", 7))
sketch10.addConstraint(Sketcher.Constraint("DistanceX", 1, 1, 1, 2, Q("16 mm")))
sketch10.addConstraint(Sketcher.Constraint("DistanceX", 4, 2, 4, 1, Q("12 mm")))
sketch10.addConstraint(Sketcher.Constraint("DistanceY", 0, 2, 0, 1, Q("19 mm")))
sketch10.addConstraint(Sketcher.Constraint("DistanceY", 5, 1, 5, 2, Q("15 mm")))
sketch10.addConstraint(Sketcher.Constraint("DistanceY", -1, 1, 0, 2, Q("14 mm")))
sketch10.addConstraint(Sketcher.Constraint("DistanceY", -1, 1, 4, 2, Q("16 mm")))
sketch10.addConstraint(Sketcher.Constraint("DistanceX", 0, 2, 4, 2, Q("2 mm")))
sketch10.addConstraint(Sketcher.Constraint("DistanceX", 0, 2, -1, 1, Q("53.5 mm")))
pad6 = body.newObject("PartDesign::Pad", "Pad005")
pad6.Profile = sketch10
pad6.Length = 4
doc.recompute()

fillet = body.newObject("PartDesign::Fillet", "Fillet")
fillet.Base = (pad6, edges_at(pad6, [(-53.5, 47, 1.5)]))
fillet.Radius = 10
doc.recompute()

fillet2 = body.newObject("PartDesign::Fillet", "Fillet001")
fillet2.Base = (fillet, edges_at(fillet, [(37.5, 55, 6.5)]))
fillet2.Radius = 3
doc.recompute()

fillet3 = body.newObject("PartDesign::Fillet", "Fillet002")
fillet3.Base = (fillet2, edges_at(fillet2, [(-37.5, 55, 6.5)]))
fillet3.Radius = 3
doc.recompute()

fillet4 = body.newObject("PartDesign::Fillet", "Fillet003")
fillet4.Base = (fillet3, edges_at(fillet3, [(-37.5, 0, 8)]))
fillet4.Radius = 3
doc.recompute()

fillet5 = body.newObject("PartDesign::Fillet", "Fillet004")
fillet5.Base = (fillet4, edges_at(fillet4, [(37.5, 0, 8)]))
fillet5.Radius = 3
doc.recompute()

fillet6 = body.newObject("PartDesign::Fillet", "Fillet005")
fillet6.Base = (fillet5, edges_at(fillet5, [(64, 15, 1.5)]))
fillet6.Radius = 7.5
doc.recompute()

fillet7 = body.newObject("PartDesign::Fillet", "Fillet006")
fillet7.Base = (fillet6, edges_at(fillet6, [(64, 0, 1.5)]))
fillet7.Radius = 7.49
doc.recompute()

fillet8 = body.newObject("PartDesign::Fillet", "Fillet007")
fillet8.Base = (fillet7, edges_at(fillet7, [(-64, 0, 1.5)]))
fillet8.Radius = 7.49
doc.recompute()

fillet9 = body.newObject("PartDesign::Fillet", "Fillet008")
fillet9.Base = (fillet8, edges_at(fillet8, [(-64, 15, 1.5)]))
fillet9.Radius = 7.5

sketch11 = body.newObject("Sketcher::SketchObject", "Sketch010")
sketch11.AttachmentSupport = (doc.getObject("XY_Plane"), [""])
sketch11.MapMode = "FlatFace"
sketch11.AttachmentOffset = App.Placement(App.Vector(0, 0, 8), App.Rotation())
sketch11.addGeometry(Part.Circle(App.Vector(-33, 4.5, 0), App.Vector(0, 0, 1), 0.6), False)
sketch11.addGeometry(Part.Circle(App.Vector(33, 4.5, 0), App.Vector(0, 0, 1), 0.6), False)
sketch11.addGeometry(Part.Circle(App.Vector(-33, 50.5, 0), App.Vector(0, 0, 1), 0.6), False)
sketch11.addGeometry(Part.Circle(App.Vector(33, 50.5, 0), App.Vector(0, 0, 1), 0.6), False)
sketch11.addConstraint(Sketcher.Constraint("Equal", 0, 1))
sketch11.addConstraint(Sketcher.Constraint("Equal", 1, 2))
sketch11.addConstraint(Sketcher.Constraint("Equal", 2, 3))
sketch11.addConstraint(Sketcher.Constraint("Symmetric", 0, 3, 1, 3, -2))
sketch11.addConstraint(Sketcher.Constraint("Symmetric", 2, 3, 3, 3, -2))
sketch11.addConstraint(Sketcher.Constraint("Vertical", 0, 3, 2, 3))
sketch11.addConstraint(Sketcher.Constraint("Diameter", 0, Q("1.2 mm")))
sketch11.addConstraint(Sketcher.Constraint("DistanceX", 0, 3, -1, 1, Q("33 mm")))
sketch11.addConstraint(Sketcher.Constraint("DistanceY", 0, 3, 2, 3, Q("46 mm")))
sketch11.addConstraint(Sketcher.Constraint("DistanceY", -1, 1, 0, 3, Q("4.5 mm")))
pocket5 = body.newObject("PartDesign::Pocket", "Pocket004")
pocket5.Profile = sketch11
pocket5.Length = 5

doc.recompute()
